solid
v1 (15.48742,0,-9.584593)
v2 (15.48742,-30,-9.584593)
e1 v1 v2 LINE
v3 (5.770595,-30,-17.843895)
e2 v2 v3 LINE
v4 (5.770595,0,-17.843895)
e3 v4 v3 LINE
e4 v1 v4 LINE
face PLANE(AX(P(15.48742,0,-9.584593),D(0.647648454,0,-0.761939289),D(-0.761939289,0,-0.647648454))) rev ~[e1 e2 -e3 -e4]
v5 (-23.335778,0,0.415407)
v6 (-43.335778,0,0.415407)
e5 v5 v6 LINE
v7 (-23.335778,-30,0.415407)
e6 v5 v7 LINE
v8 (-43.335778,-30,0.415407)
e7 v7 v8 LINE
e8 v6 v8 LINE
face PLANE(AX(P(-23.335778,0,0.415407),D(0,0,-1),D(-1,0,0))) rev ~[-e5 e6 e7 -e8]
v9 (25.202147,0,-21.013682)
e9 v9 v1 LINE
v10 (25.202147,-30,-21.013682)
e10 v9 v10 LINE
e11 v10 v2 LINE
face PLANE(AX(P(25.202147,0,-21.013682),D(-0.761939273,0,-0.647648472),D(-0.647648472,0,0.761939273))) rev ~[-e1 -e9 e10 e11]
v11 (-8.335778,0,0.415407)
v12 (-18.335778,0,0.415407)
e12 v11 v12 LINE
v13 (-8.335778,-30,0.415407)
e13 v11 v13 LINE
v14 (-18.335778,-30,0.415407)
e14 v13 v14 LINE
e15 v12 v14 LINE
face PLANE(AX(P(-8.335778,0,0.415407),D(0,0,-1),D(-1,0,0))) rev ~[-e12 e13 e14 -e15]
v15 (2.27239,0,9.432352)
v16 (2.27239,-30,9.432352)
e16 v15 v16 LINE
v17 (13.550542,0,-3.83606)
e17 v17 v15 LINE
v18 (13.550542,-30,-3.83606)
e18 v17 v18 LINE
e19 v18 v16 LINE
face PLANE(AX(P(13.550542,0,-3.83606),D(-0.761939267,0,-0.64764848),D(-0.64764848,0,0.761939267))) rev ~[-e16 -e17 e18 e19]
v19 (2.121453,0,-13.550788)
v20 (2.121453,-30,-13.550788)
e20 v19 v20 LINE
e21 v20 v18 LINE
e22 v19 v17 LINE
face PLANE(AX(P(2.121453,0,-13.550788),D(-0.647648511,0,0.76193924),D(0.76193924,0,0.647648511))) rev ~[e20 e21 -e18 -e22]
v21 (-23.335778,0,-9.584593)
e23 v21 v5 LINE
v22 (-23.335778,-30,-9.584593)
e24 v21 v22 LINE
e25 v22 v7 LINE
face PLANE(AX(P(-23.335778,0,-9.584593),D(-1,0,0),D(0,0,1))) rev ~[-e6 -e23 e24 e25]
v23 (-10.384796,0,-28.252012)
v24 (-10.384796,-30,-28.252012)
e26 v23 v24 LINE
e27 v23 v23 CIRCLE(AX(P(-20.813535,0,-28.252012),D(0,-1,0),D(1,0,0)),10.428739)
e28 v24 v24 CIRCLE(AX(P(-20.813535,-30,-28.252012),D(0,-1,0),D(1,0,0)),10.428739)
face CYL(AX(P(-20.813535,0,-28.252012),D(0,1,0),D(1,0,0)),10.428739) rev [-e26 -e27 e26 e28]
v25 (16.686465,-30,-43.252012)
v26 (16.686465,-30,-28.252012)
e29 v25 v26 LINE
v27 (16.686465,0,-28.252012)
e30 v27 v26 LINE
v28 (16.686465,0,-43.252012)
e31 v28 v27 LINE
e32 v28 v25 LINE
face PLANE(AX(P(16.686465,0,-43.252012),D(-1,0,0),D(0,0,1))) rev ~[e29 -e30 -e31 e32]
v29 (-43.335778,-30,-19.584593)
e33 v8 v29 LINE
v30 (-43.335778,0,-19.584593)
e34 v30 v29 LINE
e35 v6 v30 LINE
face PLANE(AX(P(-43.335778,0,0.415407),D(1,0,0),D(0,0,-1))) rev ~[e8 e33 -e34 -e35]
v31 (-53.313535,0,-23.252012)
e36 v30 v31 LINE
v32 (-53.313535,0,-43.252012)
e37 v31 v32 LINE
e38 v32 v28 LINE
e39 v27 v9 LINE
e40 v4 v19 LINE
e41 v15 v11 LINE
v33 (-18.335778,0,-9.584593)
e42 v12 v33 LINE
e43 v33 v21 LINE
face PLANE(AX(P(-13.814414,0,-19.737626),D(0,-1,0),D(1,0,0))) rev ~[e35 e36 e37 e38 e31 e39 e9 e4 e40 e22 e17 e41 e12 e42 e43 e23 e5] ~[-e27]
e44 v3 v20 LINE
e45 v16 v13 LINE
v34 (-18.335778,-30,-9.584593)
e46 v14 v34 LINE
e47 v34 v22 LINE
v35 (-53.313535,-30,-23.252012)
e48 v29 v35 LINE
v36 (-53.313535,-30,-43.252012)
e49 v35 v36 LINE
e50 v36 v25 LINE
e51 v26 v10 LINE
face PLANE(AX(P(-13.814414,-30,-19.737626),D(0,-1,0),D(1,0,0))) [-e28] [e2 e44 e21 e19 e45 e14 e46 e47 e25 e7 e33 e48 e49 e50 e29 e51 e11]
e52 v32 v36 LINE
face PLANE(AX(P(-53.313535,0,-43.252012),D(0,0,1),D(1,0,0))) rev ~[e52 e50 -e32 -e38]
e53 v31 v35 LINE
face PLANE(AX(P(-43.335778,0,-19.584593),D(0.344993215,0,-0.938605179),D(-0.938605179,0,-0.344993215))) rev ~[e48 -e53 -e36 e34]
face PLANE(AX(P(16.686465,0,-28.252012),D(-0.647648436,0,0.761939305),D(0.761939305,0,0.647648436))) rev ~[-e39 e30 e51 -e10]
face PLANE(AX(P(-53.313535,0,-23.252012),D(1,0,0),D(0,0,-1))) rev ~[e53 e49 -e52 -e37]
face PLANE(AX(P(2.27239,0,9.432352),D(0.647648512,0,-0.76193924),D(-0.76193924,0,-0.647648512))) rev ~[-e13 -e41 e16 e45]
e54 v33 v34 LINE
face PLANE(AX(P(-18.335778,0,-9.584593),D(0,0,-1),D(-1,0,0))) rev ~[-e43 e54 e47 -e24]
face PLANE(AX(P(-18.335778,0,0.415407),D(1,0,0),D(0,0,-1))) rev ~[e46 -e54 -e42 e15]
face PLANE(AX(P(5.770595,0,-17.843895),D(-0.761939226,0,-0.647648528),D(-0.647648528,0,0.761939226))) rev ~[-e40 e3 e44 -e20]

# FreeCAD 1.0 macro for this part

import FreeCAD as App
import Part
import Sketcher
from FreeCAD import Vector
Q = App.Units.Quantity

doc = App.newDocument("Part")
body = doc.addObject("PartDesign::Body", "Body")

# Sketch on XZ plane
sketch1 = doc.addObject("Sketcher::SketchObject", "Sketch")
body.addObject(sketch1)
sketch1.AttachmentSupport = (doc.XZ_Plane, [""])
sketch1.MapMode = "FlatFace"
sketch1.addGeometry([
    Part.LineSegment(Vector(-53, -23, 0), Vector(-53, -43, 0)),  # 0
    Part.LineSegment(Vector(-53, -43, 0), Vector(17, -43, 0)),  # 1
    Part.LineSegment(Vector(17, -43, 0), Vector(17, -28, 0)),  # 2
    Part.LineSegment(Vector(17, -28, 0), Vector(25, -21, 0)),  # 3
    Part.LineSegment(Vector(25, -21, 0), Vector(15, -10, 0)),  # 4
    Part.LineSegment(Vector(15, -10, 0), Vector(6, -18, 0)),  # 5
    Part.LineSegment(Vector(6, -18, 0), Vector(2, -14, 0)),  # 6
    Part.LineSegment(Vector(2, -14, 0), Vector(14, -4, 0)),  # 7
    Part.LineSegment(Vector(14, -4, 0), Vector(2, 9, 0)),  # 8
    Part.LineSegment(Vector(2, 9, 0), Vector(-8, 0, 0)),  # 9
    Part.LineSegment(Vector(-8, 0, 0), Vector(-18, 0, 0)),  # 10
    Part.LineSegment(Vector(-18, 0, 0), Vector(-18, -10, 0)),  # 11
    Part.LineSegment(Vector(-18, -10, 0), Vector(-23, -10, 0)),  # 12
    Part.LineSegment(Vector(-23, -10, 0), Vector(-23, 0, 0)),  # 13
    Part.LineSegment(Vector(-23, 0, 0), Vector(-43, 0, 0)),  # 14
    Part.LineSegment(Vector(-43, 0, 0), Vector(-43, -20, 0)),  # 15
    Part.LineSegment(Vector(-43, -20, 0), Vector(-53, -23, 0)),  # 16
    Part.Circle(Vector(-21, -28, 0), Vector(0, 0, 1), 10),  # 17
], False)
sketch1.addConstraint([
    Sketcher.Constraint("Coincident", 0, 2, 1, 1),
    Sketcher.Constraint("Coincident", 1, 2, 2, 1),
    Sketcher.Constraint("Coincident", 2, 2, 3, 1),
    Sketcher.Constraint("Coincident", 3, 2, 4, 1),
    Sketcher.Constraint("Coincident", 4, 2, 5, 1),
    Sketcher.Constraint("Coincident", 5, 2, 6, 1),
    Sketcher.Constraint("Coincident", 6, 2, 7, 1),
    Sketcher.Constraint("Coincident", 7, 2, 8, 1),
    Sketcher.Constraint("Coincident", 8, 2, 9, 1),
    Sketcher.Constraint("Coincident", 9, 2, 10, 1),
    Sketcher.Constraint("Coincident", 10, 2, 11, 1),
    Sketcher.Constraint("Coincident", 11, 2, 12, 1),
    Sketcher.Constraint("Coincident", 12, 2, 13, 1),
    Sketcher.Constraint("Coincident", 13, 2, 14, 1),
    Sketcher.Constraint("Coincident", 14, 2, 15, 1),
    Sketcher.Constraint("Coincident", 15, 2, 16, 1),
    Sketcher.Constraint("Coincident", 16, 2, 0, 1),
    Sketcher.Constraint("Vertical", 0),
    Sketcher.Constraint("Horizontal", 1),
    Sketcher.Constraint("Vertical", 2),
    Sketcher.Constraint("Horizontal", 10),
    Sketcher.Constraint("Vertical", 11),
    Sketcher.Constraint("Horizontal", 12),
    Sketcher.Constraint("Vertical", 13),
    Sketcher.Constraint("Horizontal", 14),
    Sketcher.Constraint("Vertical", 15),
    Sketcher.Constraint("Perpendicular", 3, 4),
    Sketcher.Constraint("Perpendicular", 4, 5),
    Sketcher.Constraint("Perpendicular", 5, 6),
    Sketcher.Constraint("Perpendicular", 6, 7),
    Sketcher.Constraint("Perpendicular", 7, 8),
    Sketcher.Constraint("Perpendicular", 8, 9),
    Sketcher.Constraint("Horizontal", 17, 3, 2, 2),
    Sketcher.Constraint("Horizontal", 4, 2, 11, 2),
    Sketcher.Constraint("Horizontal", 10, 2, 13, 2),
    Sketcher.Constraint("Equal", 14, 0),
    Sketcher.Constraint("Equal", 10, 11),
    Sketcher.Constraint("Equal", 0, 15),
    Sketcher.Constraint("Equal", 4, 7),
    Sketcher.Constraint("DistanceX", 1, 1, 1, 2, Q("70 mm")),
    Sketcher.Constraint("DistanceX", 10, 2, 10, 1, Q("10 mm")),
    Sketcher.Constraint("DistanceX", 12, 2, 12, 1, Q("5 mm")),
    Sketcher.Constraint("DistanceX", 14, 2, 14, 1, Q("20 mm")),
    Sketcher.Constraint("DistanceY", 2, 1, 2, 2, Q("15 mm")),
    Sketcher.Constraint("Distance", 4, Q("15 mm")),
    Sketcher.Constraint("DistanceX", 0, 2, 17, 3, Q("32.5 mm")),
    Sketcher.Constraint("Diameter", 17, Q("20.857478 mm")),
    Sketcher.Constraint("DistanceY", 5, 2, 9, 2, Q("18.259302 mm")),
    Sketcher.Constraint("Distance", 6, Q("5.634448 mm")),
    Sketcher.Constraint("Distance", 9, Q("13.92259 mm")),
    Sketcher.Constraint("Distance", 16, Q("10.630409 mm")),
    Sketcher.Constraint("DistanceY", 3, 2, -1, 1, Q("21.013682 mm")),
    Sketcher.Constraint("DistanceX", -1, 1, 4, 2, Q("15.48742 mm")),
    Sketcher.Constraint("DistanceY", 6, 2, -1, 1, Q("13.550788 mm")),
])
pad1 = doc.addObject("PartDesign::Pad", "Pad")
body.addObject(pad1)
pad1.Profile = sketch1
pad1.Length = 30

doc.recompute()
